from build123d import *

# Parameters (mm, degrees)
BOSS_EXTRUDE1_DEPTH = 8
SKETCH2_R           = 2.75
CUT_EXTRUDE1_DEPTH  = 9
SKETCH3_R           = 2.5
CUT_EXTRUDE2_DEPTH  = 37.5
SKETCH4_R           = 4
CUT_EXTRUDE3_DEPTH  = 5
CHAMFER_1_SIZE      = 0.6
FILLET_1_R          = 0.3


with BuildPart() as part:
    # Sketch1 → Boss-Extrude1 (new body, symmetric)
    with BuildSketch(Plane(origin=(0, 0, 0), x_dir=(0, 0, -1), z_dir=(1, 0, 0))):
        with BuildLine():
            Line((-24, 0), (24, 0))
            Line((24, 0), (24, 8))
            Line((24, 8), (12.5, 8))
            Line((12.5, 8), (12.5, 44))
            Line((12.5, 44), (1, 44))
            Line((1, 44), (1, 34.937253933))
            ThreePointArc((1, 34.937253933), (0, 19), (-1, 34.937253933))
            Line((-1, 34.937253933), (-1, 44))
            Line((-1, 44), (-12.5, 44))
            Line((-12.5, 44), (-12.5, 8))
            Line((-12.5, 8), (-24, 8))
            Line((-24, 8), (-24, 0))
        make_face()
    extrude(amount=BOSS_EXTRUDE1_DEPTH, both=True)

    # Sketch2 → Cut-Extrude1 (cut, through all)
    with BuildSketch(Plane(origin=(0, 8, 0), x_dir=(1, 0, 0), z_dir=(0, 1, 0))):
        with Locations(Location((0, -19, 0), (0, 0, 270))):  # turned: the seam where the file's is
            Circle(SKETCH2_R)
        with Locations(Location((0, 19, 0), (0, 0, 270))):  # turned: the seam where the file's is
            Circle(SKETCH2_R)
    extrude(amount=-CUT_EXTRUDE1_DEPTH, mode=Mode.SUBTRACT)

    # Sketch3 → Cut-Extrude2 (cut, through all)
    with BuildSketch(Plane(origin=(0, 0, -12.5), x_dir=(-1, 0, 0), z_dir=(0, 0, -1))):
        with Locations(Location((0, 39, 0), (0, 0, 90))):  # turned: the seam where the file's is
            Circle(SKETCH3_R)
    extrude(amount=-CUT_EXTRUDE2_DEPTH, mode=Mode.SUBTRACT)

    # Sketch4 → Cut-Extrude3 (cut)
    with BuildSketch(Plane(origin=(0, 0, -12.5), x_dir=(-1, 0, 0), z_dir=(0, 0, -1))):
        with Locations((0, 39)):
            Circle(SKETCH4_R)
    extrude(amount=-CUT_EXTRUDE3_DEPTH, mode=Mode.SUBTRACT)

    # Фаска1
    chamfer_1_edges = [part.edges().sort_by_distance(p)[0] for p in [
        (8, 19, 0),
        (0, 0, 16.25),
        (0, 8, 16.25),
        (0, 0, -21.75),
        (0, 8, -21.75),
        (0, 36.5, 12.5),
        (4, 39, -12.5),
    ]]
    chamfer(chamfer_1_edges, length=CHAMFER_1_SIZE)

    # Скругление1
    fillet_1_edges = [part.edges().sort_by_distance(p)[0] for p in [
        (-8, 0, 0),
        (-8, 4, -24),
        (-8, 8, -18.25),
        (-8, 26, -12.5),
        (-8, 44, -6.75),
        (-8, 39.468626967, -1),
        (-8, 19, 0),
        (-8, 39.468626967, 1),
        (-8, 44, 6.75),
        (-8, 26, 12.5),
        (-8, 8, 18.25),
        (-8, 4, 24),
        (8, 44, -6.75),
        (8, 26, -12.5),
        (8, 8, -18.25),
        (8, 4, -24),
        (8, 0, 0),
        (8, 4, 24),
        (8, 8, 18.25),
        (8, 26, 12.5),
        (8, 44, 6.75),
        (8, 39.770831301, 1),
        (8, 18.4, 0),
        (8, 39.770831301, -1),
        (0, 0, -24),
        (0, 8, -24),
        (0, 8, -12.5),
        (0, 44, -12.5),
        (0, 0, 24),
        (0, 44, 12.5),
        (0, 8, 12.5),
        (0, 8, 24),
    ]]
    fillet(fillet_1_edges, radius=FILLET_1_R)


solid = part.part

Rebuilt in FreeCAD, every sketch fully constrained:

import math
import FreeCAD as App
import Part
import Sketcher
Q = App.Units.Quantity


def edges_at(feature, points):
    """Names of the edges that pass closest to the given points."""
    edges = feature.Shape.Edges
    near = lambda p: min(range(len(edges)), key=lambda i: edges[i].distToShape(Part.Vertex(*p))[0])
    return sorted({f"Edge{near(p) + 1}" for p in points})

doc = App.newDocument("Part")
body = doc.addObject("PartDesign::Body", "Body")

sketch1 = body.newObject("Sketcher::SketchObject", "Sketch")
sketch1.AttachmentSupport = (doc.getObject("YZ_Plane"), [""])
sketch1.MapMode = "FlatFace"
sketch1.addGeometry([
    Part.LineSegment(App.Vector(0, 24, 0), App.Vector(0, -24, 0)),
    Part.LineSegment(App.Vector(0, -24, 0), App.Vector(8, -24, 0)),
    Part.LineSegment(App.Vector(8, -24, 0), App.Vector(8, -12.5, 0)),
    Part.LineSegment(App.Vector(8, -12.5, 0), App.Vector(44, -12.5, 0)),
    Part.LineSegment(App.Vector(44, -12.5, 0), App.Vector(44, -1, 0)),
    Part.LineSegment(App.Vector(44, -1, 0), App.Vector(34.937254, -1, 0)),
    Part.ArcOfCircle(Part.Circle(App.Vector(27, 0, 0), App.Vector(0, 0, 1), 8), math.radians(7.180756), math.radians(352.819244)),
    Part.LineSegment(App.Vector(34.937254, 1, 0), App.Vector(44, 1, 0)),
    Part.LineSegment(App.Vector(44, 1, 0), App.Vector(44, 12.5, 0)),
    Part.LineSegment(App.Vector(44, 12.5, 0), App.Vector(8, 12.5, 0)),
    Part.LineSegment(App.Vector(8, 12.5, 0), App.Vector(8, 24, 0)),
    Part.LineSegment(App.Vector(8, 24, 0), App.Vector(0, 24, 0)),
], False)
sketch1.addConstraint([
    Sketcher.Constraint("Coincident", 0, 2, 1, 1),
    Sketcher.Constraint("Coincident", 1, 2, 2, 1),
    Sketcher.Constraint("Coincident", 2, 2, 3, 1),
    Sketcher.Constraint("Coincident", 3, 2, 4, 1),
    Sketcher.Constraint("Coincident", 4, 2, 5, 1),
    Sketcher.Constraint("Coincident", 5, 2, 6, 2),
    Sketcher.Constraint("Coincident", 6, 1, 7, 1),
    Sketcher.Constraint("Coincident", 7, 2, 8, 1),
    Sketcher.Constraint("Coincident", 8, 2, 9, 1),
    Sketcher.Constraint("Coincident", 9, 2, 10, 1),
    Sketcher.Constraint("Coincident", 10, 2, 11, 1),
    Sketcher.Constraint("Coincident", 11, 2, 0, 1),
    Sketcher.Constraint("Vertical", 0),
    Sketcher.Constraint("Horizontal", 1),
    Sketcher.Constraint("Vertical", 2),
    Sketcher.Constraint("Horizontal", 3),
    Sketcher.Constraint("Vertical", 4),
    Sketcher.Constraint("Horizontal", 5),
    Sketcher.Constraint("Horizontal", 7),
    Sketcher.Constraint("Vertical", 8),
    Sketcher.Constraint("Horizontal", 9),
    Sketcher.Constraint("Vertical", 10),
    Sketcher.Constraint("Horizontal", 11),
    Sketcher.Constraint("Symmetric", 0, 2, 11, 2, -1, 1),
    Sketcher.Constraint("Symmetric", 5, 2, 6, 1, -1),
    Sketcher.Constraint("Symmetric", 3, 2, 8, 2, -1),
    Sketcher.Constraint("Vertical", 2, 2, 9, 2),
    Sketcher.Constraint("Equal", 2, 4),
    Sketcher.Constraint("Radius", 6, Q("8 mm")),
    Sketcher.Constraint("DistanceX", 1, 1, 1, 2, Q("8 mm")),
    Sketcher.Constraint("DistanceX", 3, 1, 3, 2, Q("36 mm")),
    Sketcher.Constraint("DistanceY", 0, 2, 0, 1, Q("48 mm")),
    Sketcher.Constraint("DistanceY", 2, 1, 2, 2, Q("11.5 mm")),
    Sketcher.Constraint("DistanceX", -1, 1, 6, 3, Q("27 mm")),
])
pad1 = body.newObject("PartDesign::Pad", "Pad")
pad1.Profile = sketch1
pad1.Length = 16
pad1.Midplane = True

sketch2 = body.newObject("Sketcher::SketchObject", "Sketch001")
sketch2.AttachmentSupport = (doc.getObject("XZ_Plane"), [""])
sketch2.MapMode = "FlatFace"
sketch2.AttachmentOffset = App.Placement(App.Vector(0, 0, -8), App.Rotation())
sketch2.addGeometry([
    Part.Circle(App.Vector(0, 19, 0), App.Vector(0, 0, 1), 2.75),
    Part.Circle(App.Vector(0, -19, 0), App.Vector(0, 0, 1), 2.75),
], False)
sketch2.addConstraint([
    Sketcher.Constraint("Equal", 0, 1),
    Sketcher.Constraint("Symmetric", 0, 3, 1, 3, -1, 1),
    Sketcher.Constraint("PointOnObject", 0, 3, -2),
    Sketcher.Constraint("Diameter", 0, Q("5.5 mm")),
    Sketcher.Constraint("DistanceY", -1, 1, 0, 3, Q("19 mm")),
])
pocket1 = body.newObject("PartDesign::Pocket", "Pocket")
pocket1.Profile = sketch2
pocket1.Type = "ThroughAll"
pocket1.Reversed = True

sketch3 = body.newObject("Sketcher::SketchObject", "Sketch002")
sketch3.AttachmentSupport = (doc.getObject("XY_Plane"), [""])
sketch3.MapMode = "FlatFace"
sketch3.AttachmentOffset = App.Placement(App.Vector(0, 0, -12.5), App.Rotation())
sketch3.addGeometry(Part.Circle(App.Vector(0, 39, 0), App.Vector(0, 0, 1), 2.5), False)
sketch3.addConstraint([
    Sketcher.Constraint("PointOnObject", 0, 3, -2),
    Sketcher.Constraint("Diameter", 0, Q("5 mm")),
    Sketcher.Constraint("DistanceY", -1, 1, 0, 3, Q("39 mm")),
])
pocket2 = body.newObject("PartDesign::Pocket", "Pocket001")
pocket2.Profile = sketch3
pocket2.Type = "ThroughAll"
pocket2.Reversed = True

sketch4 = body.newObject("Sketcher::SketchObject", "Sketch003")
sketch4.AttachmentSupport = (doc.getObject("XY_Plane"), [""])
sketch4.MapMode = "FlatFace"
sketch4.AttachmentOffset = App.Placement(App.Vector(0, 0, -12.5), App.Rotation())
sketch4.addGeometry(Part.Circle(App.Vector(0, 39, 0), App.Vector(0, 0, 1), 4), False)
sketch4.addConstraint([
    Sketcher.Constraint("PointOnObject", 0, 3, -2),
    Sketcher.Constraint("Diameter", 0, Q("8 mm")),
    Sketcher.Constraint("DistanceY", -1, 1, 0, 3, Q("39 mm")),
])
pocket3 = body.newObject("PartDesign::Pocket", "Pocket002")
pocket3.Profile = sketch4
pocket3.Length = 5
pocket3.Reversed = True
doc.recompute()

chamfer = body.newObject("PartDesign::Chamfer", "Chamfer")
chamfer.Base = (pocket3, edges_at(pocket3, [
    (8, 19, 0),
    (0, 0, 16.25),
    (0, 8, 16.25),
    (0, 0, -21.75),
    (0, 8, -21.75),
    (0, 36.5, 12.5),
    (4, 39, -12.5),
]))
chamfer.Size = 0.6
doc.recompute()

fillet = body.newObject("PartDesign::Fillet", "Fillet")
fillet.Base = (chamfer, edges_at(chamfer, [
    (-8, 0, 0),
    (-8, 4, -24),
    (-8, 8, -18.25),
    (-8, 26, -12.5),
    (-8, 44, -6.75),
    (-8, 39.469, -1),
    (-8, 19, 0),
    (-8, 39.469, 1),
    (-8, 44, 6.75),
    (-8, 26, 12.5),
    (-8, 8, 18.25),
    (-8, 4, 24),
    (8, 44, -6.75),
    (8, 26, -12.5),
    (8, 8, -18.25),
    (8, 4, -24),
    (8, 0, 0),
    (8, 4, 24),
    (8, 8, 18.25),
    (8, 26, 12.5),
    (8, 44, 6.75),
    (8, 39.771, 1),
    (8, 18.4, 0),
    (8, 39.771, -1),
    (0, 0, -24),
    (0, 8, -24),
    (0, 8, -12.5),
    (0, 44, -12.5),
    (0, 0, 24),
    (0, 44, 12.5),
    (0, 8, 12.5),
    (0, 8, 24),
]))
fillet.Radius = 0.3

doc.recompute()
